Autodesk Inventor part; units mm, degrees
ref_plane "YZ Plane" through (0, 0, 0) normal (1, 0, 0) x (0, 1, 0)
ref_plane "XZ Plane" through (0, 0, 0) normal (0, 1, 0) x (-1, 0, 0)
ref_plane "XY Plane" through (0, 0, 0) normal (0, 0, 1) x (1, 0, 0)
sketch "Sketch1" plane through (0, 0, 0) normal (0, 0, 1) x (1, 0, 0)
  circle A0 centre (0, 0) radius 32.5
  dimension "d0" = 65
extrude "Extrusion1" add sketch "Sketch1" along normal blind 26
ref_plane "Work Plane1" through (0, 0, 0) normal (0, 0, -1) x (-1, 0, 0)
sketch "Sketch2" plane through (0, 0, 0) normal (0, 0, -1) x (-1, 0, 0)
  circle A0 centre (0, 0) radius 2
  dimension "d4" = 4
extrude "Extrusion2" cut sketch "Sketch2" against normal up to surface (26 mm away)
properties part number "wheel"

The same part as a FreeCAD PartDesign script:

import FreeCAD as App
import Part
import Sketcher

V = App.Vector

doc = App.newDocument("Part")
body = doc.addObject("PartDesign::Body", "Body")

sketch1 = body.newObject("Sketcher::SketchObject", "Sketch")
sketch1.AttachmentSupport = (doc.getObject("XY_Plane"), [""])
sketch1.MapMode = "FlatFace"
sketch1.addGeometry(Part.Circle(V(0, 0, 0), V(0, 0, 1), 32), False)
sketch1.addConstraint([
    Sketcher.Constraint("Coincident", 0, 3, -1, 1),
    Sketcher.Constraint("Diameter", 0, 65.0),
])
pad1 = body.newObject("PartDesign::Pad", "Pad")
pad1.Profile = sketch1
pad1.Length = 26

sketch2 = body.newObject("Sketcher::SketchObject", "Sketch001")
sketch2.AttachmentSupport = (doc.getObject("XY_Plane"), [""])
sketch2.MapMode = "FlatFace"
sketch2.addGeometry(Part.Circle(V(0, 0, 0), V(0, 0, 1), 2), False)
sketch2.addConstraint([
    Sketcher.Constraint("Coincident", 0, 3, -1, 1),
    Sketcher.Constraint("Diameter", 0, 4.0),
])
pocket1 = body.newObject("PartDesign::Pocket", "Pocket")
pocket1.Profile = sketch2
pocket1.Length = 26
pocket1.Reversed = True

doc.recompute()
